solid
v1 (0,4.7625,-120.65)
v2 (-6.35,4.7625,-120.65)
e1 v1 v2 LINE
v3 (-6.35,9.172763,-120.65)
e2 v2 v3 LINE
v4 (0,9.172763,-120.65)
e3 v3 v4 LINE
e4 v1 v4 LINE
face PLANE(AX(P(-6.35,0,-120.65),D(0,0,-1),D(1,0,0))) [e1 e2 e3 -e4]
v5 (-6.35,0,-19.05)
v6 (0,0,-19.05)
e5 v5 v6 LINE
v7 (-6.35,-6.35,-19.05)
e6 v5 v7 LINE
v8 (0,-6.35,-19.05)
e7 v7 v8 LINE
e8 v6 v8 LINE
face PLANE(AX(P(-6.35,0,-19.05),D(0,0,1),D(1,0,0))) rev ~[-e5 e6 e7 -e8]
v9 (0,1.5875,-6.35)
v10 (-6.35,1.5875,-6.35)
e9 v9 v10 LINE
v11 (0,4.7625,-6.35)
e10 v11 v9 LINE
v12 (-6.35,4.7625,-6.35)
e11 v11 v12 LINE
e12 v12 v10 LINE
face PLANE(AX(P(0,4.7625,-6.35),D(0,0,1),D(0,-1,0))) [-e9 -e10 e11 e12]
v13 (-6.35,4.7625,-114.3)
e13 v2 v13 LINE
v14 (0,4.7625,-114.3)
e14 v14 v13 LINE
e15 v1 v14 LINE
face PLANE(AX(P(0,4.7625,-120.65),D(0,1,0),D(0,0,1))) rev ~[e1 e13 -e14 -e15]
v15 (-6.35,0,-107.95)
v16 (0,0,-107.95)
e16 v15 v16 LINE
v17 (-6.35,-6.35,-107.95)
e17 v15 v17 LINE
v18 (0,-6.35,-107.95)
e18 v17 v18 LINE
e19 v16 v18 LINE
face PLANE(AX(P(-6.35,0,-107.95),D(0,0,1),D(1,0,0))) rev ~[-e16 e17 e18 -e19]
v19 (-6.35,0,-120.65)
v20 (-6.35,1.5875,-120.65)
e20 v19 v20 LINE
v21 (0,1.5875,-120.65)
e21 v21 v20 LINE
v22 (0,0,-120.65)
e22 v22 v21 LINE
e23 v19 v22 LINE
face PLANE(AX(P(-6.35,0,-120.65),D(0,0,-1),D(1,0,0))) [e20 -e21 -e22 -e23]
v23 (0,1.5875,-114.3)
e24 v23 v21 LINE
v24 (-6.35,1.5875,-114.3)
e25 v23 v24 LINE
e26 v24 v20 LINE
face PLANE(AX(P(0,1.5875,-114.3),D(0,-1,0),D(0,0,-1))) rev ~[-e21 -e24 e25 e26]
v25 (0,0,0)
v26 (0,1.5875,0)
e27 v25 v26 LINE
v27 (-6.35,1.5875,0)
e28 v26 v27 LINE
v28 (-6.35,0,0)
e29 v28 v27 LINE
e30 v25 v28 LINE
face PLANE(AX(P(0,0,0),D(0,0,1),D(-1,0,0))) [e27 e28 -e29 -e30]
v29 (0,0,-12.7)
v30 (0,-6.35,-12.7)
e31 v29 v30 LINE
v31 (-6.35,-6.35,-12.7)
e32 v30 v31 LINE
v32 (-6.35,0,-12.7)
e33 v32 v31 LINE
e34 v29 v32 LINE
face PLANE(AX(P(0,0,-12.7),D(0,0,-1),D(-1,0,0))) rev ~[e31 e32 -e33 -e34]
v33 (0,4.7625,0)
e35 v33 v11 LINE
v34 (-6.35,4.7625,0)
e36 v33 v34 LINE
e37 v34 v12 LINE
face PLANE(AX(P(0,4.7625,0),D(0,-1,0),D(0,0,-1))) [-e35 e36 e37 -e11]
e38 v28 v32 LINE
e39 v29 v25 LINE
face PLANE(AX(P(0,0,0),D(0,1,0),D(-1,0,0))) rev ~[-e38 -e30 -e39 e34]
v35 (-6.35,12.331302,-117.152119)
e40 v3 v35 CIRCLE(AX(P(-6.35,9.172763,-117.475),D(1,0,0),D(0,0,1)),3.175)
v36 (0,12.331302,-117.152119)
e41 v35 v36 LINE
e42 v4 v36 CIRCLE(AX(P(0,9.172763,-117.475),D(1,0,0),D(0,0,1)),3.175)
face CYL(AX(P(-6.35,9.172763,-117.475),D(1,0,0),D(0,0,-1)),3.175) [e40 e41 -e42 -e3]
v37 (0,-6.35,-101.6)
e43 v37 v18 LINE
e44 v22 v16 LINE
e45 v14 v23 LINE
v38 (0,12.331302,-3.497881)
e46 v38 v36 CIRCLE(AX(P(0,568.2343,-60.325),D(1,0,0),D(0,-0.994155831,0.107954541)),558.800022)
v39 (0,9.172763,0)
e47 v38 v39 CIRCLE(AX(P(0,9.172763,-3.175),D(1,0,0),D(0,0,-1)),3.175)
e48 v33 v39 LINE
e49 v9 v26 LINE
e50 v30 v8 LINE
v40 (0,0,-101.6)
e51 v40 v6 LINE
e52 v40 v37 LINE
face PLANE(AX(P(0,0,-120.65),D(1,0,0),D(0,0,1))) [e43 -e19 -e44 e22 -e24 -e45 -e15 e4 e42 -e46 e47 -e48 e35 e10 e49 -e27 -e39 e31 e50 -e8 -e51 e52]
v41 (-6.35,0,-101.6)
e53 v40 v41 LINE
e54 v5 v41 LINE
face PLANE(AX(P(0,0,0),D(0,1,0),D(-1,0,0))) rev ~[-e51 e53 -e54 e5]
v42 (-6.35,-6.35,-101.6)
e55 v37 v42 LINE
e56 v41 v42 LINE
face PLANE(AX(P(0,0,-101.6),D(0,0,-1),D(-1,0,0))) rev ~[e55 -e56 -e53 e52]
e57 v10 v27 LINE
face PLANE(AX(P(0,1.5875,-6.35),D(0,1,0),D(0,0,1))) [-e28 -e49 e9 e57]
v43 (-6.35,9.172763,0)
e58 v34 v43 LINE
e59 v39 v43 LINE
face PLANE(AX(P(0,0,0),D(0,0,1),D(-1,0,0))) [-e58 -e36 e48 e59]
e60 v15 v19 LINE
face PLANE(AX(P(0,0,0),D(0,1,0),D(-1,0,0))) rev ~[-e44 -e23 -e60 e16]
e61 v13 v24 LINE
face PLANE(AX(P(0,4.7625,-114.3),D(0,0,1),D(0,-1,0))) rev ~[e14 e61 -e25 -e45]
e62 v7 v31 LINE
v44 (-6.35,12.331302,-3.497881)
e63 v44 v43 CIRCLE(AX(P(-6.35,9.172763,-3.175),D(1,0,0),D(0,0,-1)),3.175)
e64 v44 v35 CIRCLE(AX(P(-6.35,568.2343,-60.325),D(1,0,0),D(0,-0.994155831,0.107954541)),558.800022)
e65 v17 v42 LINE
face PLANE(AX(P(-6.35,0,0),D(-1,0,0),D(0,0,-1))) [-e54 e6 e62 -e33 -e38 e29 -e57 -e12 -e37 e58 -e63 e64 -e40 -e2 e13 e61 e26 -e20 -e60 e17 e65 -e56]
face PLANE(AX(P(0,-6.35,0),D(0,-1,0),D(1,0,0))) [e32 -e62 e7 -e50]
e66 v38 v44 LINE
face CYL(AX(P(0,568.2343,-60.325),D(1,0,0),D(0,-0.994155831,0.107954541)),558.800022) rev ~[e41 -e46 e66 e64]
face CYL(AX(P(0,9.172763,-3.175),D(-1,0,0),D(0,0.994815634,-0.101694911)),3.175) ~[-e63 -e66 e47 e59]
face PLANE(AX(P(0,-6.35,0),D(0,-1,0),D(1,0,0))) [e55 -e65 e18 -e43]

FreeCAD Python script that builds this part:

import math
import FreeCAD as App
import Part
import Sketcher
Q = App.Units.Quantity


def edges_at(feature, points):
    """Names of the edges that pass closest to the given points."""
    edges = feature.Shape.Edges
    near = lambda p: min(range(len(edges)), key=lambda i: edges[i].distToShape(Part.Vertex(*p))[0])
    return sorted({f"Edge{near(p) + 1}" for p in points})


def add_polygon(sketch, points):
    """Adds a closed chain of lines whose ends are joined by coincident constraints."""
    first, n = sketch.GeometryCount, len(points)
    for a, b in zip(points, points[1:] + points[:1]):
        sketch.addGeometry(Part.LineSegment(App.Vector(*a, 0), App.Vector(*b, 0)), False)
    for i in range(n):
        sketch.addConstraint(Sketcher.Constraint("Coincident", first + i, 2, first + (i + 1) % n, 1))

doc = App.newDocument("Part")
body = doc.addObject("PartDesign::Body", "Body")

sketch1 = body.newObject("Sketcher::SketchObject", "Sketch")
sketch1.AttachmentSupport = (doc.getObject("XZ_Plane"), [""])
sketch1.MapMode = "FlatFace"
add_polygon(sketch1, [(-6, 0), (0, 0), (0, -121), (-6, -121)])
sketch1.addConstraint([
    Sketcher.Constraint("Horizontal", 0),
    Sketcher.Constraint("Vertical", 1),
    Sketcher.Constraint("Horizontal", 2),
    Sketcher.Constraint("Vertical", 3),
    Sketcher.Constraint("Coincident", 0, 2, -1, 1),
    Sketcher.Constraint("DistanceX", 0, 1, 0, 2, Q("0.25 in")),
    Sketcher.Constraint("DistanceY", 1, 2, 1, 1, Q("4.75 in")),
])
pad1 = body.newObject("PartDesign::Pad", "Pad")
pad1.Profile = sketch1
pad1.Length = Q("0.5 in")
pad1.Reversed = True

sketch2 = body.newObject("Sketcher::SketchObject", "Sketch001")
sketch2.AttachmentSupport = (doc.getObject("XZ_Plane"), [""])
sketch2.MapMode = "FlatFace"
add_polygon(sketch2, [(0, -19), (0, -13), (-6, -13), (-6, -19)])
add_polygon(sketch2, [(0, -108), (0, -102), (-6, -102), (-6, -108)])
sketch2.addConstraint([
    Sketcher.Constraint("Vertical", 0),
    Sketcher.Constraint("Horizontal", 1),
    Sketcher.Constraint("Vertical", 2),
    Sketcher.Constraint("Horizontal", 3),
    Sketcher.Constraint("Vertical", 4),
    Sketcher.Constraint("Horizontal", 5),
    Sketcher.Constraint("Vertical", 6),
    Sketcher.Constraint("Horizontal", 7),
    Sketcher.Constraint("PointOnObject", 0, 2, -2),
    Sketcher.Constraint("PointOnObject", 4, 2, -2),
    Sketcher.Constraint("Vertical", 2, 2, 5, 2),
    Sketcher.Constraint("Equal", 7, 0),
    Sketcher.Constraint("Equal", 2, 4),
    Sketcher.Constraint("DistanceX", 1, 2, 1, 1, Q("0.25 in")),
    Sketcher.Constraint("DistanceY", 0, 2, -1, 1, Q("0.5 in")),
    Sketcher.Constraint("DistanceY", 4, 2, -1, 1, Q("4 in")),
])
pad2 = body.newObject("PartDesign::Pad", "Pad001")
pad2.Profile = sketch2
pad2.Length = Q("0.25 in")

sketch3 = body.newObject("Sketcher::SketchObject", "Sketch002")
sketch3.AttachmentSupport = (doc.getObject("YZ_Plane"), [""])
sketch3.MapMode = "FlatFace"
add_polygon(sketch3, [(4.8, 0), (1.6, 0), (1.6, -6.3), (4.8, -6.3)])
add_polygon(sketch3, [(1.6, -114.3), (1.6, -120.7), (4.8, -120.7), (4.8, -114.3)])
sketch3.addConstraint([
    Sketcher.Constraint("Horizontal", 0),
    Sketcher.Constraint("Vertical", 1),
    Sketcher.Constraint("Horizontal", 2),
    Sketcher.Constraint("Vertical", 3),
    Sketcher.Constraint("Vertical", 4),
    Sketcher.Constraint("Horizontal", 5),
    Sketcher.Constraint("Vertical", 6),
    Sketcher.Constraint("Horizontal", 7),
    Sketcher.Constraint("PointOnObject", 0, 2, -1),
    Sketcher.Constraint("Vertical", 1, 2, 4, 2),
    Sketcher.Constraint("Vertical", 3, 2, 5, 2),
    Sketcher.Constraint("Equal", 3, 4),
    Sketcher.Constraint("DistanceY", 1, 2, 1, 1, Q("0.25 in")),
    Sketcher.Constraint("DistanceX", 0, 2, 0, 1, Q("0.125 in")),
    Sketcher.Constraint("DistanceX", -1, 1, 0, 2, Q("0.0625 in")),
    Sketcher.Constraint("DistanceY", 6, 2, -1, 1, Q("4.5 in")),
])
pocket1 = body.newObject("PartDesign::Pocket", "Pocket")
pocket1.Profile = sketch3
pocket1.Length = Q("0.25 in")

sketch4 = body.newObject("Sketcher::SketchObject", "Sketch003")
sketch4.AttachmentSupport = (doc.getObject("YZ_Plane"), [""])
sketch4.MapMode = "FlatFace"
sketch4.addGeometry([
    Part.LineSegment(App.Vector(13, -121, 0), App.Vector(13, 0, 0)),
    Part.ArcOfCircle(Part.Circle(App.Vector(568, -60, 0), App.Vector(0, 0, 1), 559), math.radians(173.8), math.radians(186.2)),
], False)
sketch4.addConstraint([
    Sketcher.Constraint("Coincident", 0, 1, 1, 2),
    Sketcher.Constraint("Coincident", 1, 1, 0, 2),
    Sketcher.Constraint("Vertical", 0),
    Sketcher.Constraint("Radius", 1, Q("22 in")),
    Sketcher.Constraint("DistanceY", 0, 1, 0, 2, Q("4.75 in")),
    Sketcher.Constraint("DistanceX", -1, 1, 0, 1, Q("0.5 in")),
    Sketcher.Constraint("DistanceY", 0, 1, -1, 1, Q("4.75 in")),
])
pocket2 = body.newObject("PartDesign::Pocket", "Pocket001")
pocket2.Profile = sketch4
pocket2.Length = Q("0.25 in")
doc.recompute()

fillet = body.newObject("PartDesign::Fillet", "Fillet")
fillet.Base = (pocket2, edges_at(pocket2, [(-3.175, 12.7, 0), (-3.175, 12.7, -120.65)]))
fillet.Radius = Q("0.125 in")

doc.recompute()
